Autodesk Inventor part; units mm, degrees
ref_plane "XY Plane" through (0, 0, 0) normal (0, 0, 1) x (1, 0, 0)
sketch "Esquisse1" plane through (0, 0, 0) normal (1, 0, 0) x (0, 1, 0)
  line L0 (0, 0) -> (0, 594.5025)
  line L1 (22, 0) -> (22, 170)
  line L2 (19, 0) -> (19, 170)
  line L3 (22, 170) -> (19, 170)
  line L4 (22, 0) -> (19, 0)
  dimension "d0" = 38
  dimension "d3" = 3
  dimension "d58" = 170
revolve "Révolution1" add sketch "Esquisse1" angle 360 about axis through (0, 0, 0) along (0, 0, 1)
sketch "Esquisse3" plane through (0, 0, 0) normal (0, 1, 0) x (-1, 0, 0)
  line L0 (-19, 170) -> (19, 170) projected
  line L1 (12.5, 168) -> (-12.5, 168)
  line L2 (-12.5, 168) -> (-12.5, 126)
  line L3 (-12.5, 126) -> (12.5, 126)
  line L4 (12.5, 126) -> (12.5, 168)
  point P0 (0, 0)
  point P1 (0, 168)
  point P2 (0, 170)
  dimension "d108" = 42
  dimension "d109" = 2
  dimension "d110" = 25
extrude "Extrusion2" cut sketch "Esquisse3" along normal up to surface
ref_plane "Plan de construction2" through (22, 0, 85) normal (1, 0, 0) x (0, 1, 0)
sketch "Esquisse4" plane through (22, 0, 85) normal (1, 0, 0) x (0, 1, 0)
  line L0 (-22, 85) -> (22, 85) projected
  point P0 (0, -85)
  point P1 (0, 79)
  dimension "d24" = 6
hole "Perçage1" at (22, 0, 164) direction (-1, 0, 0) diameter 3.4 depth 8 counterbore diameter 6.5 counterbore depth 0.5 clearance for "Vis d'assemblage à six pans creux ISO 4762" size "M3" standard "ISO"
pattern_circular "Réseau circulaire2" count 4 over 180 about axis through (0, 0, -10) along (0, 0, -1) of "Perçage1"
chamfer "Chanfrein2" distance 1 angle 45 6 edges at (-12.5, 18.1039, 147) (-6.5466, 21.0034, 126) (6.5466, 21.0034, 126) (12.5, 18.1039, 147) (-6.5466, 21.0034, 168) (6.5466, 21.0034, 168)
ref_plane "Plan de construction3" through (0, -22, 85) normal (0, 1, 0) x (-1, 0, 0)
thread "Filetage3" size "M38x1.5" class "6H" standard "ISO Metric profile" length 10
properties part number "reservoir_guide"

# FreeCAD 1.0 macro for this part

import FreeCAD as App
import Part
import Sketcher

V = App.Vector


def edges_at(feature, points):
    """Names of the edges that pass closest to the given points."""
    edges = feature.Shape.Edges
    near = lambda p: min(range(len(edges)), key=lambda i: edges[i].distToShape(Part.Vertex(*p))[0])
    return sorted({f"Edge{near(p) + 1}" for p in points})

doc = App.newDocument("Part")
params = doc.addObject("Spreadsheet::Sheet", "Params")
for row, (alias, value) in enumerate([
    ("sketch1_width", "3 mm"),
    ("sketch1_height", "170 mm"),
    ("revolution_angle", "360 deg"),
    ("sketch2_width", "25 mm"),
    ("sketch2_height", "42 mm"),
    ("pocket1_length", "22 mm"),
    ("sketch3_diameter", "3.4 mm"),
    ("hole_diameter", "3.4 mm"),
    ("hole_depth", "8 mm"),
    ("hole_cbore_diameter", "6.5 mm"),
    ("hole_cbore_depth", "0.5 mm"),
    ("chamfer_size", "1 mm"),
], start=1):
    params.set(f"A{row}", alias)
    params.set(f"B{row}", "=" + value)
    params.setAlias(f"B{row}", alias)

body = doc.addObject("PartDesign::Body", "Body")

# Sketch on YZ plane
sketch1 = doc.addObject("Sketcher::SketchObject", "Sketch")
body.addObject(sketch1)
sketch1.AttachmentSupport = (doc.YZ_Plane, [""])
sketch1.MapMode = "FlatFace"
sketch1.addGeometry(Part.LineSegment(V(19, 0, 0), V(22, 0, 0)), False)
sketch1.addGeometry(Part.LineSegment(V(22, 0, 0), V(22, 170, 0)), False)
sketch1.addGeometry(Part.LineSegment(V(22, 170, 0), V(19, 170, 0)), False)
sketch1.addGeometry(Part.LineSegment(V(19, 170, 0), V(19, 0, 0)), False)
sketch1.addConstraint(Sketcher.Constraint("Coincident", 0, 2, 1, 1))
sketch1.addConstraint(Sketcher.Constraint("Coincident", 1, 2, 2, 1))
sketch1.addConstraint(Sketcher.Constraint("Coincident", 2, 2, 3, 1))
sketch1.addConstraint(Sketcher.Constraint("Coincident", 3, 2, 0, 1))
sketch1.addConstraint(Sketcher.Constraint("Horizontal", 0))
sketch1.addConstraint(Sketcher.Constraint("Vertical", 1))
sketch1.addConstraint(Sketcher.Constraint("Horizontal", 2))
sketch1.addConstraint(Sketcher.Constraint("Vertical", 3))
sketch1.addConstraint(Sketcher.Constraint("PointOnObject", 0, 2, -1))
sketch1.addConstraint(Sketcher.Constraint("DistanceX", 0, 1, 0, 2, 3.0))
sketch1.addConstraint(Sketcher.Constraint("DistanceY", 1, 1, 1, 2, 170.0))
sketch1.addConstraint(Sketcher.Constraint("DistanceX", -1, 1, 0, 2, 22.0))
sketch1.setExpression("Constraints[9]", "Params.sketch1_width")
sketch1.setExpression("Constraints[10]", "Params.sketch1_height")
revolution = doc.addObject("PartDesign::Revolution", "Revolution")
body.addObject(revolution)
revolution.Profile = sketch1
revolution.ReferenceAxis = (sketch1, ["V_Axis"])
revolution.setExpression("Angle", "Params.revolution_angle")

# Sketch on XZ plane
sketch2 = doc.addObject("Sketcher::SketchObject", "Sketch001")
body.addObject(sketch2)
sketch2.AttachmentSupport = (doc.XZ_Plane, [""])
sketch2.MapMode = "FlatFace"
sketch2.addGeometry(Part.LineSegment(V(-12, 126, 0), V(-12, 168, 0)), False)
sketch2.addGeometry(Part.LineSegment(V(-12, 168, 0), V(12, 168, 0)), False)
sketch2.addGeometry(Part.LineSegment(V(12, 168, 0), V(12, 126, 0)), False)
sketch2.addGeometry(Part.LineSegment(V(12, 126, 0), V(-12, 126, 0)), False)
sketch2.addConstraint(Sketcher.Constraint("Coincident", 0, 2, 1, 1))
sketch2.addConstraint(Sketcher.Constraint("Coincident", 1, 2, 2, 1))
sketch2.addConstraint(Sketcher.Constraint("Coincident", 2, 2, 3, 1))
sketch2.addConstraint(Sketcher.Constraint("Coincident", 3, 2, 0, 1))
sketch2.addConstraint(Sketcher.Constraint("Vertical", 0))
sketch2.addConstraint(Sketcher.Constraint("Horizontal", 1))
sketch2.addConstraint(Sketcher.Constraint("Vertical", 2))
sketch2.addConstraint(Sketcher.Constraint("Horizontal", 3))
sketch2.addConstraint(Sketcher.Constraint("DistanceX", 1, 1, 1, 2, 25.0))
sketch2.addConstraint(Sketcher.Constraint("DistanceY", 0, 1, 0, 2, 42.0))
sketch2.addConstraint(Sketcher.Constraint("DistanceY", -1, 1, 0, 2, 168.0))
sketch2.addConstraint(Sketcher.Constraint("DistanceX", 0, 2, -1, 1, 12.5))
sketch2.setExpression("Constraints[8]", "Params.sketch2_width")
sketch2.setExpression("Constraints[9]", "Params.sketch2_height")
pocket1 = doc.addObject("PartDesign::Pocket", "Pocket")
body.addObject(pocket1)
pocket1.Profile = sketch2
pocket1.setExpression("Length", "Params.pocket1_length")

# Sketch on YZ plane
sketch3 = doc.addObject("Sketcher::SketchObject", "Sketch002")
body.addObject(sketch3)
sketch3.AttachmentSupport = (doc.YZ_Plane, [""])
sketch3.MapMode = "FlatFace"
sketch3.AttachmentOffset = App.Placement(V(0, 0, 22), App.Rotation())
sketch3.addGeometry(Part.Circle(V(0, 164, 0), V(0, 0, 1), 1.7), False)
sketch3.addConstraint(Sketcher.Constraint("PointOnObject", 0, 3, -2))
sketch3.addConstraint(Sketcher.Constraint("Diameter", 0, 3.4))
sketch3.addConstraint(Sketcher.Constraint("DistanceY", -1, 1, 0, 3, 164.0))
sketch3.setExpression("Constraints[1]", "Params.sketch3_diameter")
doc.recompute()
hole = doc.addObject("PartDesign::Hole", "Hole")
body.addObject(hole)
hole.Profile = sketch3
hole.ThreadType = "None"
hole.setExpression("Diameter", "Params.hole_diameter")
hole.DepthType = "Dimension"
hole.setExpression("Depth", "Params.hole_depth")
hole.DrillPoint = "Flat"
hole.HoleCutType = "Counterbore"
hole.setExpression("HoleCutDiameter", "Params.hole_cbore_diameter")
hole.setExpression("HoleCutDepth", "Params.hole_cbore_depth")
doc.recompute()

polarpattern = doc.addObject("PartDesign::PolarPattern", "PolarPattern")
body.addObject(polarpattern)
polarpattern.Originals = [hole]
polarpattern.Axis = (doc.Z_Axis, [""])
polarpattern.Angle = 180
polarpattern.Occurrences = 4
polarpattern.Reversed = True
body.Tip = polarpattern
doc.recompute()

chamfer = doc.addObject("PartDesign::Chamfer", "Chamfer")
body.addObject(chamfer)
chamfer.Base = (polarpattern, edges_at(polarpattern, [
    (-12.5, 18.104, 147),
    (-6.547, 21.003, 126),
    (6.547, 21.003, 126),
    (12.5, 18.104, 147),
    (-6.547, 21.003, 168),
    (6.547, 21.003, 168),
]))
chamfer.setExpression("Size", "Params.chamfer_size")

doc.recompute()
